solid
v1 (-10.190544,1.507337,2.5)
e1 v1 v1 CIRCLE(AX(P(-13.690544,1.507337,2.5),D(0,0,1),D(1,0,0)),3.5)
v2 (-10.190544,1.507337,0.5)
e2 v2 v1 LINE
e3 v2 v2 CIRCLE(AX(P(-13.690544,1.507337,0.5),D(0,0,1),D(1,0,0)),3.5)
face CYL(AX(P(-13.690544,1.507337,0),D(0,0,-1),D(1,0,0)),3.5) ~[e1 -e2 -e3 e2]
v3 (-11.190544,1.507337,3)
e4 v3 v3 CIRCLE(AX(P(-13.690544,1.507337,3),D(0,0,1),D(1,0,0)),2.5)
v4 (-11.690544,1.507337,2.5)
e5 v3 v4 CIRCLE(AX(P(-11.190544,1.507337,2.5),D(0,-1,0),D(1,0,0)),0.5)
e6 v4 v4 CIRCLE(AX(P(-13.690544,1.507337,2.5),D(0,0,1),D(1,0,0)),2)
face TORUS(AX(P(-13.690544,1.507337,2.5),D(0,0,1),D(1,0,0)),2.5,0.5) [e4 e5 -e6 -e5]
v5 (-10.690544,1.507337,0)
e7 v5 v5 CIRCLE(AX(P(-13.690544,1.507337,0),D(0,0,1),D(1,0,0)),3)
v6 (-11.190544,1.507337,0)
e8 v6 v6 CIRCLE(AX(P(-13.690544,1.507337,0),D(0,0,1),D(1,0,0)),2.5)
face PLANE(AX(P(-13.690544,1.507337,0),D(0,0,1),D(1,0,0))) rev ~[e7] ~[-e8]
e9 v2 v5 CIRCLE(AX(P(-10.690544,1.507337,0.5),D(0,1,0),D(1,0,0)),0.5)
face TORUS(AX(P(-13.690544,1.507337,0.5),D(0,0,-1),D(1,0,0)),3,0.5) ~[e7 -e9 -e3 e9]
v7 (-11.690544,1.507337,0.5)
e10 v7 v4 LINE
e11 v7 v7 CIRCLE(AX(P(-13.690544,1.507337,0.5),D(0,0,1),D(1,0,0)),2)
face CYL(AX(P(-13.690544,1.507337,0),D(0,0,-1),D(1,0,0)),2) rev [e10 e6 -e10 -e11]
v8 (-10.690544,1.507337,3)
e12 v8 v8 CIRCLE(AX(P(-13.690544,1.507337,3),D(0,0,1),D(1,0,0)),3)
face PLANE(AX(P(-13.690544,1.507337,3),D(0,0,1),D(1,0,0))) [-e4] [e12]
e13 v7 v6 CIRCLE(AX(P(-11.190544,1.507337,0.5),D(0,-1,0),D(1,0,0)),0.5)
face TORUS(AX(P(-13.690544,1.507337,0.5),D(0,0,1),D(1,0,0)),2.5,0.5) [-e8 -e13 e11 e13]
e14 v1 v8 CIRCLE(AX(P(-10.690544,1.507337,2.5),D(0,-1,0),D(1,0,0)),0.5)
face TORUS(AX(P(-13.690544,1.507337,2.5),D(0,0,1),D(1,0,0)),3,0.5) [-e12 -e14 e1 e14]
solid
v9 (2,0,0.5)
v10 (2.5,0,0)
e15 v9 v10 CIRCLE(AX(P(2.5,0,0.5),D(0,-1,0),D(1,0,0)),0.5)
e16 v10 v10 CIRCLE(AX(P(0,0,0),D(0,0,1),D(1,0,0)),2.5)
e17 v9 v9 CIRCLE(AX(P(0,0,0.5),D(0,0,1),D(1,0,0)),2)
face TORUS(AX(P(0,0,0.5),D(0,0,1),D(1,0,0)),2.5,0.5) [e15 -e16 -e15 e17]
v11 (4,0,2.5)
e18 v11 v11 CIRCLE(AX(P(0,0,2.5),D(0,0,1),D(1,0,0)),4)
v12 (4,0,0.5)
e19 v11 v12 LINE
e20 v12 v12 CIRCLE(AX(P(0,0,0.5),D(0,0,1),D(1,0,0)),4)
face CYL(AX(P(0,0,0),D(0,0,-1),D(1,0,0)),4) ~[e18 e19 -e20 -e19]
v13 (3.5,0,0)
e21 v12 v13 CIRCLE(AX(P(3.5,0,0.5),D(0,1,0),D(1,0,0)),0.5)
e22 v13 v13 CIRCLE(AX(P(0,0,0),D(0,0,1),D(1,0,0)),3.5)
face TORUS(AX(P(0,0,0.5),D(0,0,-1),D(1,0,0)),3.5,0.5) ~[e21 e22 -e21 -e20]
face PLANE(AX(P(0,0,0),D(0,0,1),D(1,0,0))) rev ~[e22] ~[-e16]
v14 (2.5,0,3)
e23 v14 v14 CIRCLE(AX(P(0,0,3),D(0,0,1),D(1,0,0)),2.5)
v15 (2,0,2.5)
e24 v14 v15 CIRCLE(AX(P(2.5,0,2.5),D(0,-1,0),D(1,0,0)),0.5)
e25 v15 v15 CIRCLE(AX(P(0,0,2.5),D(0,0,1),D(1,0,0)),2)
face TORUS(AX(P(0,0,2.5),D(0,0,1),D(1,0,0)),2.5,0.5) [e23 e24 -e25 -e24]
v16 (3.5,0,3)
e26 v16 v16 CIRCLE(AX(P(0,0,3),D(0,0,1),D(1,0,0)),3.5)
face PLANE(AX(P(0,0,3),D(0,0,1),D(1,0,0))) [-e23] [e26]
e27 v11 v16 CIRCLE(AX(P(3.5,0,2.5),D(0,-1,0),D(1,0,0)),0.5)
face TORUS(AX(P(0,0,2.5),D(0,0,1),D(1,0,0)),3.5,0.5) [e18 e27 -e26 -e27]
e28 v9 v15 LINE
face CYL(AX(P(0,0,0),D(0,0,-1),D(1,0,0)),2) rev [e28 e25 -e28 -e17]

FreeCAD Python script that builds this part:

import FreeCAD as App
import Part
import Sketcher
from FreeCAD import Vector
Q = App.Units.Quantity


def edges_at(feature, points):
    """Names of the edges that pass closest to the given points."""
    edges = feature.Shape.Edges
    near = lambda p: min(range(len(edges)), key=lambda i: edges[i].distToShape(Part.Vertex(*p))[0])
    return sorted({f"Edge{near(p) + 1}" for p in points})

doc = App.newDocument("Part")
body = doc.addObject("PartDesign::Body", "Body")
body.AllowCompound = True

# Sketch on XY plane
sketch1 = body.newObject("Sketcher::SketchObject", "Sketch")
sketch1.AttachmentSupport = (doc.getObject("XY_Plane"), [""])
sketch1.MapMode = "FlatFace"
sketch1.addGeometry(Part.Circle(Vector(0, 0, 0), Vector(0, 0, 1), 4), False)
sketch1.addGeometry(Part.Circle(Vector(0, 0, 0), Vector(0, 0, 1), 2), False)
sketch1.addConstraint(Sketcher.Constraint("Coincident", 0, 3, -1, 1))
sketch1.addConstraint(Sketcher.Constraint("Coincident", 1, 3, -1, 1))
sketch1.addConstraint(Sketcher.Constraint("Diameter", 0, Q("8 mm")))
sketch1.addConstraint(Sketcher.Constraint("Diameter", 1, Q("4 mm")))
pad1 = body.newObject("PartDesign::Pad", "Pad")
pad1.Profile = sketch1
pad1.Length = 3
doc.recompute()

fillet = body.newObject("PartDesign::Fillet", "Fillet")
fillet.Base = (pad1, edges_at(pad1, [
    (-2, 0, 3),
    (-2, 0, 0),
    (-4, 0, 0),
    (-4, 0, 3),
]))
fillet.Radius = 0.5

# Sketch on XY plane
sketch2 = body.newObject("Sketcher::SketchObject", "Sketch001")
sketch2.AttachmentSupport = (doc.getObject("XY_Plane"), [""])
sketch2.MapMode = "FlatFace"
sketch2.addGeometry(Part.Circle(Vector(0, 0, 0), Vector(0, 0, 1), 4), False)
sketch2.addGeometry(Part.Circle(Vector(0, 0, 0), Vector(0, 0, 1), 2), False)
sketch2.addGeometry(Part.Circle(Vector(-13.690544, 1.507337, 0), Vector(0, 0, 1), 3.5), False)
sketch2.addGeometry(Part.Circle(Vector(-13.690544, 1.507337, 0), Vector(0, 0, 1), 2), False)
sketch2.addConstraint(Sketcher.Constraint("Coincident", 0, 3, -1, 1))
sketch2.addConstraint(Sketcher.Constraint("Coincident", 1, 3, -1, 1))
sketch2.addConstraint(Sketcher.Constraint("Coincident", 3, 3, 2, 3))
sketch2.addConstraint(Sketcher.Constraint("Equal", 1, 3))
sketch2.addConstraint(Sketcher.Constraint("Diameter", 0, Q("8 mm")))
sketch2.addConstraint(Sketcher.Constraint("Diameter", 1, Q("4 mm")))
sketch2.addConstraint(Sketcher.Constraint("Diameter", 2, Q("7 mm")))
sketch2.addConstraint(Sketcher.Constraint("DistanceX", 2, 3, -1, 1, Q("13.690544 mm")))
sketch2.addConstraint(Sketcher.Constraint("DistanceY", -1, 1, 2, 3, Q("1.507337 mm")))
pad2 = body.newObject("PartDesign::Pad", "Pad001")
pad2.Profile = sketch2
pad2.Length = 3
doc.recompute()

fillet2 = body.newObject("PartDesign::Fillet", "Fillet001")
fillet2.Base = (pad2, edges_at(pad2, [
    (-17.191, 1.507, 3),
    (-15.691, 1.507, 3),
    (-17.191, 1.507, 0),
    (-15.691, 1.507, 0),
]))
fillet2.Radius = 0.5
doc.recompute()

fillet3 = body.newObject("PartDesign::Fillet", "Fillet002")
fillet3.Base = (fillet2, edges_at(fillet2, [
    (-4, 0, 3),
    (-2, 0, 3),
    (-4, 0, 0),
    (-2, 0, 0),
]))
fillet3.Radius = 0.5

doc.recompute()
